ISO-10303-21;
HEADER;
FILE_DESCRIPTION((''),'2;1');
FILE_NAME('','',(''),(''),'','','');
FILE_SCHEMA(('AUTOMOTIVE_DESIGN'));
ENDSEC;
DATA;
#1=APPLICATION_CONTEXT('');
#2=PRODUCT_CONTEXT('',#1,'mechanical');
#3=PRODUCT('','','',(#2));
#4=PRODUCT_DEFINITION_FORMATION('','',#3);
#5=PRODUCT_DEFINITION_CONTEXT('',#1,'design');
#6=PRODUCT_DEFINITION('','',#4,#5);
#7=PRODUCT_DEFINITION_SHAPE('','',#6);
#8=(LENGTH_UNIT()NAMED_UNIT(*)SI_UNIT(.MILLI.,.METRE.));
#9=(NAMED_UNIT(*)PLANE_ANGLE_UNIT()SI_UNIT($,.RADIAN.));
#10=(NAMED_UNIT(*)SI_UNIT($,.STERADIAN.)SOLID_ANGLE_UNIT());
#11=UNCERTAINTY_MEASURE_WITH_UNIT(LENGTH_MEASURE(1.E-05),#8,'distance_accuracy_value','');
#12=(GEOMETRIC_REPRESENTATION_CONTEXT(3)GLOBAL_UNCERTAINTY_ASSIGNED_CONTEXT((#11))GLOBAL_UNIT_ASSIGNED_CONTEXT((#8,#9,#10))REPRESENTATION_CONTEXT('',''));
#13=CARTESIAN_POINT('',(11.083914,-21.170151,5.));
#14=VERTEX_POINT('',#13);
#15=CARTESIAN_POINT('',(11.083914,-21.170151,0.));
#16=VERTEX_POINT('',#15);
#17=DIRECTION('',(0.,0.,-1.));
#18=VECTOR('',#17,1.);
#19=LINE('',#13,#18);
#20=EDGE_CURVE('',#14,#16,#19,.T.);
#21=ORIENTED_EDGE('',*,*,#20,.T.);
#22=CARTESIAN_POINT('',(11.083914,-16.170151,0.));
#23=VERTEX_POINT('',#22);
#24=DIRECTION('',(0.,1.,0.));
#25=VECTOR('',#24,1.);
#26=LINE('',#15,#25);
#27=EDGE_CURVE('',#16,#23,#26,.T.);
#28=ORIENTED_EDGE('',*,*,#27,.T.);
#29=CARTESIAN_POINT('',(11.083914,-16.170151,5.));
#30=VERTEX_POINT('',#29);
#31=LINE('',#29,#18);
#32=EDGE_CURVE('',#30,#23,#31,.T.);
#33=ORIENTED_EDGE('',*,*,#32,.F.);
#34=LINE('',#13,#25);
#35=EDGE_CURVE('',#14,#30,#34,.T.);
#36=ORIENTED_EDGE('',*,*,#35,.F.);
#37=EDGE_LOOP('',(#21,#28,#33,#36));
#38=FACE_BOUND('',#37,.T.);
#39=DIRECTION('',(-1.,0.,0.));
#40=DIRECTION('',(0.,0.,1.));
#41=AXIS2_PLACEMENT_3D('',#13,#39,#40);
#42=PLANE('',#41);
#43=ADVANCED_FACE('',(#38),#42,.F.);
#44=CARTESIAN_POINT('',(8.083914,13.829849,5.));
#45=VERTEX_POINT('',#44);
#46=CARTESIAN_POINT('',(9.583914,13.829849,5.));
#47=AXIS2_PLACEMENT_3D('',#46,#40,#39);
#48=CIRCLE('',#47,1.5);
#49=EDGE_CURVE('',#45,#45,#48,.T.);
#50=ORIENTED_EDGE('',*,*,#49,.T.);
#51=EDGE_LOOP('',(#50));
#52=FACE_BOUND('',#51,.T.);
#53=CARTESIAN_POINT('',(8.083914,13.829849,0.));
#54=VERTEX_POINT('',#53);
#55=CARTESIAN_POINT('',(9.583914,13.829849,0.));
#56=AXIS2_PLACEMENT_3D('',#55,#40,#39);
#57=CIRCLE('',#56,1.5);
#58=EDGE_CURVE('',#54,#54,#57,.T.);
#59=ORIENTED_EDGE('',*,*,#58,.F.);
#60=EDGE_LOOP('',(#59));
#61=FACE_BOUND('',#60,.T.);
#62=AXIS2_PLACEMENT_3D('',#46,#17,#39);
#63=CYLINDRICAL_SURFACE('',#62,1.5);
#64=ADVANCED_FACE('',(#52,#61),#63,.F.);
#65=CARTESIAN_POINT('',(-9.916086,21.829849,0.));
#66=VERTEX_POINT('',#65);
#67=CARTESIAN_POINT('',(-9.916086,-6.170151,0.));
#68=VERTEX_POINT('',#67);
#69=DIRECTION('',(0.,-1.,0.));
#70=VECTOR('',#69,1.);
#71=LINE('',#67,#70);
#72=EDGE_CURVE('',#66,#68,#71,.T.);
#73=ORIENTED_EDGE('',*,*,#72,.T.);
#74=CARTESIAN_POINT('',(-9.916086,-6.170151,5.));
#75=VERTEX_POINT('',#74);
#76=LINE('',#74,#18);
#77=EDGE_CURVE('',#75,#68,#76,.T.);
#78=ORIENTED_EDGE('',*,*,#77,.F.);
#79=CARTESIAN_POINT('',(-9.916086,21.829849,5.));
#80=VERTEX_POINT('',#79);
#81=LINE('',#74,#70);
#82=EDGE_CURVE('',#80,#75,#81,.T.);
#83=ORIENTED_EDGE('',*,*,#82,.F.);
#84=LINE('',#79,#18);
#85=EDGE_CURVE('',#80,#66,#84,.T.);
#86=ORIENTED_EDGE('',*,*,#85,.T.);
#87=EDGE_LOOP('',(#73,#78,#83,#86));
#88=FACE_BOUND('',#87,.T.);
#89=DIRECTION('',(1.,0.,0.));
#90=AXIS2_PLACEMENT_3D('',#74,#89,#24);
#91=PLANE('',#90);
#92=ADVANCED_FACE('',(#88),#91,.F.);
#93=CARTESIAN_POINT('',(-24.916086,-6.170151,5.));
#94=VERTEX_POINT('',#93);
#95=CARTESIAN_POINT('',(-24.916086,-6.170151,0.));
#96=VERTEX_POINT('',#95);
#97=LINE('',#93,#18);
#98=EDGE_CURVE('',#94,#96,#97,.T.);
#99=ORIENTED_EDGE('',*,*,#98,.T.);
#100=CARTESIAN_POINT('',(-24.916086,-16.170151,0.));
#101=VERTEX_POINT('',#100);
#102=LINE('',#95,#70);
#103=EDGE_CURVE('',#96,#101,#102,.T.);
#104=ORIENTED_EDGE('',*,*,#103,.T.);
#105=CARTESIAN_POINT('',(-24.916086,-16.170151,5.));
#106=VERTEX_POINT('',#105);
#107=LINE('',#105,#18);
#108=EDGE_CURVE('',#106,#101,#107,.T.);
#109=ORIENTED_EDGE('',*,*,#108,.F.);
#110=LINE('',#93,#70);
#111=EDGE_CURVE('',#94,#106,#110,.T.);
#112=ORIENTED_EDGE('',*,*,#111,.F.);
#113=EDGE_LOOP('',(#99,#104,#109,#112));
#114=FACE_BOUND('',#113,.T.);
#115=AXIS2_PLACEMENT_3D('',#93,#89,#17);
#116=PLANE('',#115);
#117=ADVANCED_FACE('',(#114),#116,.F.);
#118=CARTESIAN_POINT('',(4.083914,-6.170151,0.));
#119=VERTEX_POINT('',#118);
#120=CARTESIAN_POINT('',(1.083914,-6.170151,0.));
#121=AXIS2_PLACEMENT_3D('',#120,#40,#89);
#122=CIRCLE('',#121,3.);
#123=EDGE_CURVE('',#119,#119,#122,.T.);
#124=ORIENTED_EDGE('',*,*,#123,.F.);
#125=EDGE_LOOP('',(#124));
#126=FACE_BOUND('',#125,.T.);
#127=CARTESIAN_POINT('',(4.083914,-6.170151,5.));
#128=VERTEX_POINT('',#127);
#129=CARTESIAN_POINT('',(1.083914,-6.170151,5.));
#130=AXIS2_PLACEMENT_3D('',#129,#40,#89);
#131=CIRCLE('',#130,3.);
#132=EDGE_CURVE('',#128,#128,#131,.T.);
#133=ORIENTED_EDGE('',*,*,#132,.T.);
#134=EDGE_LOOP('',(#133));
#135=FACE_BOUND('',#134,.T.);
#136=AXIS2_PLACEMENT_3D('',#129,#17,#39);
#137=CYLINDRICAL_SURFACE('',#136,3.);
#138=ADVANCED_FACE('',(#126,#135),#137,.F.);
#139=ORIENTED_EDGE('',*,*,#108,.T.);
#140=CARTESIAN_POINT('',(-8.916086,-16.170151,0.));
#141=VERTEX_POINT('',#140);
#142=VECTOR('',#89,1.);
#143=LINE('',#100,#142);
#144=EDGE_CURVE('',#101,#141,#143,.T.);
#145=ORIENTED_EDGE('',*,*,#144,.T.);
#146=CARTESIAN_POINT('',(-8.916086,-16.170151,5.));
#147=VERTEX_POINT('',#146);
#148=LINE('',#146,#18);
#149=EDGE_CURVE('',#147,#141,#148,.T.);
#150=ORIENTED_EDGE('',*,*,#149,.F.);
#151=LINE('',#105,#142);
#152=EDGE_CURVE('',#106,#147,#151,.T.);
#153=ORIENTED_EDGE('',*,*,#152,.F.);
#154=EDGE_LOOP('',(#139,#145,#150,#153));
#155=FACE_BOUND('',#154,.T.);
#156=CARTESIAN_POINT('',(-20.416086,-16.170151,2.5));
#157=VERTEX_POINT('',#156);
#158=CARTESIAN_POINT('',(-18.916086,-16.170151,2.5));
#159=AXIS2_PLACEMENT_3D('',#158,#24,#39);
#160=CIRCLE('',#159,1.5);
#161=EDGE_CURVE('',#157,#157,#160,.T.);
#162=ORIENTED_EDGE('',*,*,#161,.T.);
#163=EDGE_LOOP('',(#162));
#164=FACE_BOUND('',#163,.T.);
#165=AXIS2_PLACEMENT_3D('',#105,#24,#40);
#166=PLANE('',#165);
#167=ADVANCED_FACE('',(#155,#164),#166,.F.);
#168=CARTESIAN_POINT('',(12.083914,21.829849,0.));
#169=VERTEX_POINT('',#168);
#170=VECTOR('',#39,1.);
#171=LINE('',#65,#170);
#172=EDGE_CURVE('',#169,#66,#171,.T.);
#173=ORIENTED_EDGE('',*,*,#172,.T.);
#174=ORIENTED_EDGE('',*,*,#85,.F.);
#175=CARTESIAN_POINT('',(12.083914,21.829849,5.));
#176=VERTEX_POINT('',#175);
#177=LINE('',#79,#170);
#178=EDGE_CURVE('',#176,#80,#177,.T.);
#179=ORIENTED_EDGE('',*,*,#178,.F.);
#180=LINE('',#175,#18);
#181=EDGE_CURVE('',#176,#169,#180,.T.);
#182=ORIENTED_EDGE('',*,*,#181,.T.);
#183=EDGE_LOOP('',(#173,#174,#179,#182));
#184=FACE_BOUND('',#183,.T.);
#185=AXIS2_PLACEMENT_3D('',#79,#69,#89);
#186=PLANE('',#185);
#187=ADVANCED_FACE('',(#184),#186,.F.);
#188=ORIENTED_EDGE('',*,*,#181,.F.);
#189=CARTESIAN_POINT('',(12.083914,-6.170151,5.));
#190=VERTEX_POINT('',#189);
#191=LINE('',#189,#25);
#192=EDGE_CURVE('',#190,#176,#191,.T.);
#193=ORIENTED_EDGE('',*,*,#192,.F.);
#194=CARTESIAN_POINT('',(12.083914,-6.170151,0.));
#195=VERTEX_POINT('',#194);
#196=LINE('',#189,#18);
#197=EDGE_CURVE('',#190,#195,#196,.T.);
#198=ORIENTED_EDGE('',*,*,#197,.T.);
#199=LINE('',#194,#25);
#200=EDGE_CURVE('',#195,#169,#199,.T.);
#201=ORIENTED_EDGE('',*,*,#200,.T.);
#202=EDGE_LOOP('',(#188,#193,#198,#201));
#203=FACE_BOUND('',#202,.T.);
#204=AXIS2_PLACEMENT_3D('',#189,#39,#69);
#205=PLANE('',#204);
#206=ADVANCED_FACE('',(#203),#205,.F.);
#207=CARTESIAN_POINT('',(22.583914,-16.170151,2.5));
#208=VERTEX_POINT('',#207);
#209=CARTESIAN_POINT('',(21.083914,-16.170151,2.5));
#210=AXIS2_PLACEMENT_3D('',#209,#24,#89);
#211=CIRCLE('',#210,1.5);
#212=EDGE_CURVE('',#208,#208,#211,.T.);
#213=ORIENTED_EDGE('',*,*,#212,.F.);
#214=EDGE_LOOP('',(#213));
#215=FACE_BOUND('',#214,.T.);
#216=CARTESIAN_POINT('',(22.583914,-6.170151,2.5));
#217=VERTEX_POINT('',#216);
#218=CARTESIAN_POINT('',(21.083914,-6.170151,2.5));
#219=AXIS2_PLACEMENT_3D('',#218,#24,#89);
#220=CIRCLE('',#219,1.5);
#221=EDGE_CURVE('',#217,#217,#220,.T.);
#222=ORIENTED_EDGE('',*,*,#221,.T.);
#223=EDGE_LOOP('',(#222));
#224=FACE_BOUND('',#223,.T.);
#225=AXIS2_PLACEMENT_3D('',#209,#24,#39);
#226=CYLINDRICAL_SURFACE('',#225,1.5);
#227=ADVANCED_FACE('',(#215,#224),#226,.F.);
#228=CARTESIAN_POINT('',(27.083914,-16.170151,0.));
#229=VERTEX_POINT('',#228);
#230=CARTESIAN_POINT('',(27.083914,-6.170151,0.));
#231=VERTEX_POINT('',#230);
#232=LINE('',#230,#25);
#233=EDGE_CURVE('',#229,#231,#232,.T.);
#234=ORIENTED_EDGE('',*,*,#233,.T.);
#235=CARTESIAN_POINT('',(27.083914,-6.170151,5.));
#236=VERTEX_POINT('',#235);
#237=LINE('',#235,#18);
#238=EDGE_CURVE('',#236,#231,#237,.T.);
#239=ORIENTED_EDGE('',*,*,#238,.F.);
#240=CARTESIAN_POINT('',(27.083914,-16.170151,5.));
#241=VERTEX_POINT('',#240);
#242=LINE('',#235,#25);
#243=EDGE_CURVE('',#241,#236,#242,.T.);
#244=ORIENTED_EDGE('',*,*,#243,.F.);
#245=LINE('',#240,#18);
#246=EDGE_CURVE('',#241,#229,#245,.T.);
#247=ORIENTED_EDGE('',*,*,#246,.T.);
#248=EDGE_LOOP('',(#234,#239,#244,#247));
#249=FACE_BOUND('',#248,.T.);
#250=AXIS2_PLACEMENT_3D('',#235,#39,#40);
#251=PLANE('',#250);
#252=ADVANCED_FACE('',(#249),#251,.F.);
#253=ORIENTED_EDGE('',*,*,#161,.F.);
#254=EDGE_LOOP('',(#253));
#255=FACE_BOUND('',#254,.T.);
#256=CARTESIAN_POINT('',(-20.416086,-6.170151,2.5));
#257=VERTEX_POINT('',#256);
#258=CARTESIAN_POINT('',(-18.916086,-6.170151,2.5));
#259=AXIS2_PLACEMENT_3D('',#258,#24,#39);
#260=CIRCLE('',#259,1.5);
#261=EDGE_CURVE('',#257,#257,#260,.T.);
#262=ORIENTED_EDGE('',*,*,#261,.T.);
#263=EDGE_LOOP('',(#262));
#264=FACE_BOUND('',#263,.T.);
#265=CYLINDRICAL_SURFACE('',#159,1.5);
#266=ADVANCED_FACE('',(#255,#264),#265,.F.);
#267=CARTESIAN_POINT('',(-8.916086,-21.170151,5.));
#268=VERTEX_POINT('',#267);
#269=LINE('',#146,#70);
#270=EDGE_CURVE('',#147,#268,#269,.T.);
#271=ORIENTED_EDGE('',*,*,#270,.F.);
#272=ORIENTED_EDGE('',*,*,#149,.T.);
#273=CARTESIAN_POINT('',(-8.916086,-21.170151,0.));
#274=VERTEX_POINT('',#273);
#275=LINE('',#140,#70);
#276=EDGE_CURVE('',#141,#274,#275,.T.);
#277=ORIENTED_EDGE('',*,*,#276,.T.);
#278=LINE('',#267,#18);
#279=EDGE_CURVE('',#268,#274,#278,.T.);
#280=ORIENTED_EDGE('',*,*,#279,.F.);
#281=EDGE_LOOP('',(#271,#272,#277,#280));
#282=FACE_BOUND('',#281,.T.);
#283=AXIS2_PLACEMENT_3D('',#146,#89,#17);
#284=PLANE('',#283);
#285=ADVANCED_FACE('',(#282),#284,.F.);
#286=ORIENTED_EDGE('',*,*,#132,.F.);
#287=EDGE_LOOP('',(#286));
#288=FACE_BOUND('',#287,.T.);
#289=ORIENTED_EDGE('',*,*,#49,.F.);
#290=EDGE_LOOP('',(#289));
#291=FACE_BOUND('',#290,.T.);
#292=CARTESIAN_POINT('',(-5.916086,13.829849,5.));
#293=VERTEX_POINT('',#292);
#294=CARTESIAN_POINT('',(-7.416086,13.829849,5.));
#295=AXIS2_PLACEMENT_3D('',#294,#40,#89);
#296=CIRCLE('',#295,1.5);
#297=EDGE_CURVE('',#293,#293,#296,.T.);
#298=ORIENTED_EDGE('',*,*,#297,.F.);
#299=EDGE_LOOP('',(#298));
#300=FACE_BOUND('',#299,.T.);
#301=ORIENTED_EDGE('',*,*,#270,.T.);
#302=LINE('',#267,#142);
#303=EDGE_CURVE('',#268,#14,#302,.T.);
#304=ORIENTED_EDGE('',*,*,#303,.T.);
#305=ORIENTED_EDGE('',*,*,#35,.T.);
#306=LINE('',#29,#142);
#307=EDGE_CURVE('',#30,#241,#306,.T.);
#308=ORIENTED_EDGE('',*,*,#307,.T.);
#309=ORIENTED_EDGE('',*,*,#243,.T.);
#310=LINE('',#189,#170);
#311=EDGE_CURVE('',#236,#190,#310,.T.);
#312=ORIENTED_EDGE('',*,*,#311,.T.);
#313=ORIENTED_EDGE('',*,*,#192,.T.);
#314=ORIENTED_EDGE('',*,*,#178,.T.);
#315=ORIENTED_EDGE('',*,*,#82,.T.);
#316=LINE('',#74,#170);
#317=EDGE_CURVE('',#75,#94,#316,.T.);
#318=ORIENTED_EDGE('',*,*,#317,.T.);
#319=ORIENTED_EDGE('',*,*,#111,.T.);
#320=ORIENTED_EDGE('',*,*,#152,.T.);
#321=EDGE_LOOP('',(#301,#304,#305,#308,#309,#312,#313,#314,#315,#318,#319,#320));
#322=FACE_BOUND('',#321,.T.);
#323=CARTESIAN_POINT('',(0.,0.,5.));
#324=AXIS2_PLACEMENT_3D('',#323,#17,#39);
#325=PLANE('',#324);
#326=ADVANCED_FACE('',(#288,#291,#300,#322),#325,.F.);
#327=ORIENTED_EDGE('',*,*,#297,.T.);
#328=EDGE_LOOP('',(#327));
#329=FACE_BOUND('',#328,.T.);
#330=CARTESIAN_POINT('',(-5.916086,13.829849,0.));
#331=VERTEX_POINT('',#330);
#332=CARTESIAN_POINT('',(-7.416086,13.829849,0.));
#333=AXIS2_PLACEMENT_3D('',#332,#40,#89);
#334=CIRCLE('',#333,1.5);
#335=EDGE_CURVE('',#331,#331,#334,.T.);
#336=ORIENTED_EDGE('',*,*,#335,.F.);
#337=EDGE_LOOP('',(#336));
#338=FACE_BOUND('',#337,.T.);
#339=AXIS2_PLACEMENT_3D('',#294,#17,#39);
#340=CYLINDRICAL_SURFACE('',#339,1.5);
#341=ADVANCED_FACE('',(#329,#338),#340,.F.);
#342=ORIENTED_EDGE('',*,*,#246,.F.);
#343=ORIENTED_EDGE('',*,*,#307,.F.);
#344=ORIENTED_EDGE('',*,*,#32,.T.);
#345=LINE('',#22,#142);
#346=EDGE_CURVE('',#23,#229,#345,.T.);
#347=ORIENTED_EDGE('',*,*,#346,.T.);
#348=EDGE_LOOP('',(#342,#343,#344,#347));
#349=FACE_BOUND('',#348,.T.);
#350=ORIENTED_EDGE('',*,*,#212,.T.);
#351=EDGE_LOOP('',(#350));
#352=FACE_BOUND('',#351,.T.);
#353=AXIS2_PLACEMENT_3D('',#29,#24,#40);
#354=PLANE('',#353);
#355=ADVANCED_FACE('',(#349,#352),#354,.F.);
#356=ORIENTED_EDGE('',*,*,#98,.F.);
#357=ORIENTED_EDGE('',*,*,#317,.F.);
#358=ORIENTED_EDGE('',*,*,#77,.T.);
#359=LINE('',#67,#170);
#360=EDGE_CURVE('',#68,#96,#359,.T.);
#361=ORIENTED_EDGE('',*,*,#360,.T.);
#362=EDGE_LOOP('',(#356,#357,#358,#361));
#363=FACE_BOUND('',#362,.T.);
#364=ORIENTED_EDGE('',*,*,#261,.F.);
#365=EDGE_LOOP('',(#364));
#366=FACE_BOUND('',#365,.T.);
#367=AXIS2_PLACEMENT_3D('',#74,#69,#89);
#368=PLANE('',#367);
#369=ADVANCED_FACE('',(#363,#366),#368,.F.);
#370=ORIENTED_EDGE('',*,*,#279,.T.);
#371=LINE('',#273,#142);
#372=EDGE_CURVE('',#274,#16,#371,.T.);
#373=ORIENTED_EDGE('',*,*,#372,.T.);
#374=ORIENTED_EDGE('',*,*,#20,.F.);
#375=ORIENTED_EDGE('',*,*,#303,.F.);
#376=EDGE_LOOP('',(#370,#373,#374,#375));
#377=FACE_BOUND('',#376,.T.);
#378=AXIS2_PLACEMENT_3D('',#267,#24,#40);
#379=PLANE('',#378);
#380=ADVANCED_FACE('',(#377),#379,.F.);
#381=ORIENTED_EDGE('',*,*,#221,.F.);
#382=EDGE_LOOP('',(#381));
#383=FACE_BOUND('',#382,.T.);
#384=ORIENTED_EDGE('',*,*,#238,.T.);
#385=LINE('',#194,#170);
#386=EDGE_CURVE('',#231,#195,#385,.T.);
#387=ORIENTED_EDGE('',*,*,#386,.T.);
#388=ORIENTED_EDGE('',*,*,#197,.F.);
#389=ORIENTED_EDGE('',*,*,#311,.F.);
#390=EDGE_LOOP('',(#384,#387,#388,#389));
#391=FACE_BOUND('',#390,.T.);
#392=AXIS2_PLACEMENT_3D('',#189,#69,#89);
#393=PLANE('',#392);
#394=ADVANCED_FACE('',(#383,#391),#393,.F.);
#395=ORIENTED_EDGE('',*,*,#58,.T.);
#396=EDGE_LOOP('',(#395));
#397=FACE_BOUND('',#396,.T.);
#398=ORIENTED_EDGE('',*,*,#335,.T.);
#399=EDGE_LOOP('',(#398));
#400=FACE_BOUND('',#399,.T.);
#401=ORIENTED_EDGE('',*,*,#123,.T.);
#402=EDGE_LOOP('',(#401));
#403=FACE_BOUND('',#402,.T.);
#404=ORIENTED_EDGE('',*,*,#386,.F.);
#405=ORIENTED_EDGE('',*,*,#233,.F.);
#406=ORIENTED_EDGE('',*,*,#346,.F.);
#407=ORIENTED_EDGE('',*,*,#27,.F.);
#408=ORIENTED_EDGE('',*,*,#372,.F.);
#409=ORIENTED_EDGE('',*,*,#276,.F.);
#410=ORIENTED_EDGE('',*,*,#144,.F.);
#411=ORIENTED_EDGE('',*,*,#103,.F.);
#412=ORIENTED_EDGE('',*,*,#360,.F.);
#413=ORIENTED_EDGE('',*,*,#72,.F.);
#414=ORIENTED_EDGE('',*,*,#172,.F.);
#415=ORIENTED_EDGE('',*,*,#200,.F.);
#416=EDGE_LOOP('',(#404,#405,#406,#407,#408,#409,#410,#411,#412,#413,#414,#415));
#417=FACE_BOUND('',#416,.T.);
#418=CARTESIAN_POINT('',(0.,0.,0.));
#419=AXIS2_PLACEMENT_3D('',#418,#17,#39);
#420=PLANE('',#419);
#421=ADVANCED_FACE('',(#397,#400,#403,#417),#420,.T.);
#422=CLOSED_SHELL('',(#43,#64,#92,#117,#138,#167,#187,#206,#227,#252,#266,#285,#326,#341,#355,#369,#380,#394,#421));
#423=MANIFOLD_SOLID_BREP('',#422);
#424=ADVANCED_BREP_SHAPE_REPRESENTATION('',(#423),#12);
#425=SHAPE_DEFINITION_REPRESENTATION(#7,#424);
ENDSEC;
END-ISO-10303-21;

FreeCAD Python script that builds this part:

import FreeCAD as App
import Part
import Sketcher
from FreeCAD import Vector
Q = App.Units.Quantity

doc = App.newDocument("Part")
body = doc.addObject("PartDesign::Body", "Body")

sketch1 = body.newObject("Sketcher::SketchObject", "Sketch")
sketch1.AttachmentSupport = (doc.getObject("XY_Plane"), [""])
sketch1.MapMode = "FlatFace"
sketch1.addGeometry(Part.LineSegment(Vector(12.1, -6.2, 0), Vector(12.1, 21.8, 0)), False)
sketch1.addGeometry(Part.LineSegment(Vector(12.1, 21.8, 0), Vector(-9.9, 21.8, 0)), False)
sketch1.addGeometry(Part.LineSegment(Vector(-9.9, 21.8, 0), Vector(-9.9, -6.2, 0)), False)
sketch1.addGeometry(Part.LineSegment(Vector(-9.9, -6.2, 0), Vector(-24.9, -6.2, 0)), False)
sketch1.addGeometry(Part.LineSegment(Vector(-24.9, -6.2, 0), Vector(-24.9, -16.2, 0)), False)
sketch1.addGeometry(Part.LineSegment(Vector(-24.9, -16.2, 0), Vector(-8.9, -16.2, 0)), False)
sketch1.addGeometry(Part.LineSegment(Vector(-8.9, -16.2, 0), Vector(-8.9, -21.2, 0)), False)
sketch1.addGeometry(Part.LineSegment(Vector(-8.9, -21.2, 0), Vector(11.1, -21.2, 0)), False)
sketch1.addGeometry(Part.LineSegment(Vector(11.1, -21.2, 0), Vector(11.1, -16.2, 0)), False)
sketch1.addGeometry(Part.LineSegment(Vector(11.1, -16.2, 0), Vector(27.1, -16.2, 0)), False)
sketch1.addGeometry(Part.LineSegment(Vector(27.1, -16.2, 0), Vector(27.1, -6.2, 0)), False)
sketch1.addGeometry(Part.LineSegment(Vector(27.1, -6.2, 0), Vector(12.1, -6.2, 0)), False)
sketch1.addGeometry(Part.Circle(Vector(1.1, -6.2, 0), Vector(0, 0, 1), 3), False)
sketch1.addGeometry(Part.Circle(Vector(-7.4, 13.8, 0), Vector(0, 0, 1), 1.5), False)
sketch1.addGeometry(Part.Circle(Vector(9.6, 13.8, 0), Vector(0, 0, 1), 1.5), False)
sketch1.addConstraint(Sketcher.Constraint("Coincident", 0, 2, 1, 1))
sketch1.addConstraint(Sketcher.Constraint("Coincident", 1, 2, 2, 1))
sketch1.addConstraint(Sketcher.Constraint("Coincident", 2, 2, 3, 1))
sketch1.addConstraint(Sketcher.Constraint("Coincident", 3, 2, 4, 1))
sketch1.addConstraint(Sketcher.Constraint("Coincident", 4, 2, 5, 1))
sketch1.addConstraint(Sketcher.Constraint("Coincident", 5, 2, 6, 1))
sketch1.addConstraint(Sketcher.Constraint("Coincident", 6, 2, 7, 1))
sketch1.addConstraint(Sketcher.Constraint("Coincident", 7, 2, 8, 1))
sketch1.addConstraint(Sketcher.Constraint("Coincident", 8, 2, 9, 1))
sketch1.addConstraint(Sketcher.Constraint("Coincident", 9, 2, 10, 1))
sketch1.addConstraint(Sketcher.Constraint("Coincident", 10, 2, 11, 1))
sketch1.addConstraint(Sketcher.Constraint("Coincident", 11, 2, 0, 1))
sketch1.addConstraint(Sketcher.Constraint("Vertical", 0))
sketch1.addConstraint(Sketcher.Constraint("Horizontal", 1))
sketch1.addConstraint(Sketcher.Constraint("Vertical", 2))
sketch1.addConstraint(Sketcher.Constraint("Horizontal", 3))
sketch1.addConstraint(Sketcher.Constraint("Vertical", 4))
sketch1.addConstraint(Sketcher.Constraint("Horizontal", 5))
sketch1.addConstraint(Sketcher.Constraint("Vertical", 6))
sketch1.addConstraint(Sketcher.Constraint("Horizontal", 7))
sketch1.addConstraint(Sketcher.Constraint("Vertical", 8))
sketch1.addConstraint(Sketcher.Constraint("Horizontal", 9))
sketch1.addConstraint(Sketcher.Constraint("Vertical", 10))
sketch1.addConstraint(Sketcher.Constraint("Horizontal", 11))
sketch1.addConstraint(Sketcher.Constraint("Equal", 13, 14))
sketch1.addConstraint(Sketcher.Constraint("Horizontal", 13, 3, 14, 3))
sketch1.addConstraint(Sketcher.Constraint("Horizontal", 12, 3, 2, 2))
sketch1.addConstraint(Sketcher.Constraint("Horizontal", 5, 2, 8, 2))
sketch1.addConstraint(Sketcher.Constraint("Horizontal", 3, 2, 10, 2))
sketch1.addConstraint(Sketcher.Constraint("Equal", 5, 9))
sketch1.addConstraint(Sketcher.Constraint("Equal", 3, 11))
sketch1.addConstraint(Sketcher.Constraint("Diameter", 12, Q("6 mm")))
sketch1.addConstraint(Sketcher.Constraint("Diameter", 13, Q("3 mm")))
sketch1.addConstraint(Sketcher.Constraint("DistanceX", 1, 2, 1, 1, Q("22 mm")))
sketch1.addConstraint(Sketcher.Constraint("DistanceX", 3, 2, 3, 1, Q("15 mm")))
sketch1.addConstraint(Sketcher.Constraint("DistanceX", 5, 1, 5, 2, Q("16 mm")))
sketch1.addConstraint(Sketcher.Constraint("DistanceY", 0, 1, 0, 2, Q("28 mm")))
sketch1.addConstraint(Sketcher.Constraint("DistanceY", 4, 2, 4, 1, Q("10 mm")))
sketch1.addConstraint(Sketcher.Constraint("DistanceY", 6, 2, 6, 1, Q("5 mm")))
sketch1.addConstraint(Sketcher.Constraint("DistanceY", 12, 3, 13, 3, Q("20 mm")))
sketch1.addConstraint(Sketcher.Constraint("DistanceX", 13, 3, 14, 3, Q("17 mm")))
sketch1.addConstraint(Sketcher.Constraint("DistanceX", 12, 3, 0, 2, Q("11 mm")))
sketch1.addConstraint(Sketcher.Constraint("DistanceX", 13, 3, 12, 3, Q("8.5 mm")))
sketch1.addConstraint(Sketcher.Constraint("DistanceY", 12, 3, -1, 1, Q("6.170151 mm")))
sketch1.addConstraint(Sketcher.Constraint("DistanceX", -1, 1, 12, 3, Q("1.083914 mm")))
pad1 = body.newObject("PartDesign::Pad", "Pad")
pad1.Profile = sketch1
pad1.Length = 5

sketch2 = body.newObject("Sketcher::SketchObject", "Sketch001")
sketch2.AttachmentSupport = (doc.getObject("XZ_Plane"), [""])
sketch2.MapMode = "FlatFace"
sketch2.AttachmentOffset = App.Placement(Vector(0, 0, 6.170151), App.Rotation())
sketch2.addGeometry(Part.Circle(Vector(-18.9, 2.5, 0), Vector(0, 0, 1), 1.5), False)
sketch2.addConstraint(Sketcher.Constraint("Diameter", 0, Q("3 mm")))
sketch2.addConstraint(Sketcher.Constraint("DistanceY", -1, 1, 0, 3, Q("2.5 mm")))
sketch2.addConstraint(Sketcher.Constraint("DistanceX", 0, 3, -1, 1, Q("18.916086 mm")))
pocket1 = body.newObject("PartDesign::Pocket", "Pocket")
pocket1.Profile = sketch2
pocket1.Length = 10
pocket1.Reversed = True

sketch3 = body.newObject("Sketcher::SketchObject", "Sketch002")
sketch3.AttachmentSupport = (doc.getObject("XZ_Plane"), [""])
sketch3.MapMode = "FlatFace"
sketch3.AttachmentOffset = App.Placement(Vector(0, 0, 6.170151), App.Rotation())
sketch3.addGeometry(Part.Circle(Vector(-18.9, 2.5, 0), Vector(0, 0, 1), 1.5), False)
sketch3.addGeometry(Part.Circle(Vector(21.1, 2.5, 0), Vector(0, 0, 1), 1.5), False)
sketch3.addConstraint(Sketcher.Constraint("Equal", 0, 1))
sketch3.addConstraint(Sketcher.Constraint("Horizontal", 0, 3, 1, 3))
sketch3.addConstraint(Sketcher.Constraint("Diameter", 0, Q("3 mm")))
sketch3.addConstraint(Sketcher.Constraint("DistanceX", 0, 3, 1, 3, Q("40 mm")))
sketch3.addConstraint(Sketcher.Constraint("DistanceY", -1, 1, 0, 3, Q("2.5 mm")))
sketch3.addConstraint(Sketcher.Constraint("DistanceX", 0, 3, -1, 1, Q("18.916086 mm")))
pocket2 = body.newObject("PartDesign::Pocket", "Pocket001")
pocket2.Profile = sketch3
pocket2.Length = 10
pocket2.Reversed = True

doc.recompute()
